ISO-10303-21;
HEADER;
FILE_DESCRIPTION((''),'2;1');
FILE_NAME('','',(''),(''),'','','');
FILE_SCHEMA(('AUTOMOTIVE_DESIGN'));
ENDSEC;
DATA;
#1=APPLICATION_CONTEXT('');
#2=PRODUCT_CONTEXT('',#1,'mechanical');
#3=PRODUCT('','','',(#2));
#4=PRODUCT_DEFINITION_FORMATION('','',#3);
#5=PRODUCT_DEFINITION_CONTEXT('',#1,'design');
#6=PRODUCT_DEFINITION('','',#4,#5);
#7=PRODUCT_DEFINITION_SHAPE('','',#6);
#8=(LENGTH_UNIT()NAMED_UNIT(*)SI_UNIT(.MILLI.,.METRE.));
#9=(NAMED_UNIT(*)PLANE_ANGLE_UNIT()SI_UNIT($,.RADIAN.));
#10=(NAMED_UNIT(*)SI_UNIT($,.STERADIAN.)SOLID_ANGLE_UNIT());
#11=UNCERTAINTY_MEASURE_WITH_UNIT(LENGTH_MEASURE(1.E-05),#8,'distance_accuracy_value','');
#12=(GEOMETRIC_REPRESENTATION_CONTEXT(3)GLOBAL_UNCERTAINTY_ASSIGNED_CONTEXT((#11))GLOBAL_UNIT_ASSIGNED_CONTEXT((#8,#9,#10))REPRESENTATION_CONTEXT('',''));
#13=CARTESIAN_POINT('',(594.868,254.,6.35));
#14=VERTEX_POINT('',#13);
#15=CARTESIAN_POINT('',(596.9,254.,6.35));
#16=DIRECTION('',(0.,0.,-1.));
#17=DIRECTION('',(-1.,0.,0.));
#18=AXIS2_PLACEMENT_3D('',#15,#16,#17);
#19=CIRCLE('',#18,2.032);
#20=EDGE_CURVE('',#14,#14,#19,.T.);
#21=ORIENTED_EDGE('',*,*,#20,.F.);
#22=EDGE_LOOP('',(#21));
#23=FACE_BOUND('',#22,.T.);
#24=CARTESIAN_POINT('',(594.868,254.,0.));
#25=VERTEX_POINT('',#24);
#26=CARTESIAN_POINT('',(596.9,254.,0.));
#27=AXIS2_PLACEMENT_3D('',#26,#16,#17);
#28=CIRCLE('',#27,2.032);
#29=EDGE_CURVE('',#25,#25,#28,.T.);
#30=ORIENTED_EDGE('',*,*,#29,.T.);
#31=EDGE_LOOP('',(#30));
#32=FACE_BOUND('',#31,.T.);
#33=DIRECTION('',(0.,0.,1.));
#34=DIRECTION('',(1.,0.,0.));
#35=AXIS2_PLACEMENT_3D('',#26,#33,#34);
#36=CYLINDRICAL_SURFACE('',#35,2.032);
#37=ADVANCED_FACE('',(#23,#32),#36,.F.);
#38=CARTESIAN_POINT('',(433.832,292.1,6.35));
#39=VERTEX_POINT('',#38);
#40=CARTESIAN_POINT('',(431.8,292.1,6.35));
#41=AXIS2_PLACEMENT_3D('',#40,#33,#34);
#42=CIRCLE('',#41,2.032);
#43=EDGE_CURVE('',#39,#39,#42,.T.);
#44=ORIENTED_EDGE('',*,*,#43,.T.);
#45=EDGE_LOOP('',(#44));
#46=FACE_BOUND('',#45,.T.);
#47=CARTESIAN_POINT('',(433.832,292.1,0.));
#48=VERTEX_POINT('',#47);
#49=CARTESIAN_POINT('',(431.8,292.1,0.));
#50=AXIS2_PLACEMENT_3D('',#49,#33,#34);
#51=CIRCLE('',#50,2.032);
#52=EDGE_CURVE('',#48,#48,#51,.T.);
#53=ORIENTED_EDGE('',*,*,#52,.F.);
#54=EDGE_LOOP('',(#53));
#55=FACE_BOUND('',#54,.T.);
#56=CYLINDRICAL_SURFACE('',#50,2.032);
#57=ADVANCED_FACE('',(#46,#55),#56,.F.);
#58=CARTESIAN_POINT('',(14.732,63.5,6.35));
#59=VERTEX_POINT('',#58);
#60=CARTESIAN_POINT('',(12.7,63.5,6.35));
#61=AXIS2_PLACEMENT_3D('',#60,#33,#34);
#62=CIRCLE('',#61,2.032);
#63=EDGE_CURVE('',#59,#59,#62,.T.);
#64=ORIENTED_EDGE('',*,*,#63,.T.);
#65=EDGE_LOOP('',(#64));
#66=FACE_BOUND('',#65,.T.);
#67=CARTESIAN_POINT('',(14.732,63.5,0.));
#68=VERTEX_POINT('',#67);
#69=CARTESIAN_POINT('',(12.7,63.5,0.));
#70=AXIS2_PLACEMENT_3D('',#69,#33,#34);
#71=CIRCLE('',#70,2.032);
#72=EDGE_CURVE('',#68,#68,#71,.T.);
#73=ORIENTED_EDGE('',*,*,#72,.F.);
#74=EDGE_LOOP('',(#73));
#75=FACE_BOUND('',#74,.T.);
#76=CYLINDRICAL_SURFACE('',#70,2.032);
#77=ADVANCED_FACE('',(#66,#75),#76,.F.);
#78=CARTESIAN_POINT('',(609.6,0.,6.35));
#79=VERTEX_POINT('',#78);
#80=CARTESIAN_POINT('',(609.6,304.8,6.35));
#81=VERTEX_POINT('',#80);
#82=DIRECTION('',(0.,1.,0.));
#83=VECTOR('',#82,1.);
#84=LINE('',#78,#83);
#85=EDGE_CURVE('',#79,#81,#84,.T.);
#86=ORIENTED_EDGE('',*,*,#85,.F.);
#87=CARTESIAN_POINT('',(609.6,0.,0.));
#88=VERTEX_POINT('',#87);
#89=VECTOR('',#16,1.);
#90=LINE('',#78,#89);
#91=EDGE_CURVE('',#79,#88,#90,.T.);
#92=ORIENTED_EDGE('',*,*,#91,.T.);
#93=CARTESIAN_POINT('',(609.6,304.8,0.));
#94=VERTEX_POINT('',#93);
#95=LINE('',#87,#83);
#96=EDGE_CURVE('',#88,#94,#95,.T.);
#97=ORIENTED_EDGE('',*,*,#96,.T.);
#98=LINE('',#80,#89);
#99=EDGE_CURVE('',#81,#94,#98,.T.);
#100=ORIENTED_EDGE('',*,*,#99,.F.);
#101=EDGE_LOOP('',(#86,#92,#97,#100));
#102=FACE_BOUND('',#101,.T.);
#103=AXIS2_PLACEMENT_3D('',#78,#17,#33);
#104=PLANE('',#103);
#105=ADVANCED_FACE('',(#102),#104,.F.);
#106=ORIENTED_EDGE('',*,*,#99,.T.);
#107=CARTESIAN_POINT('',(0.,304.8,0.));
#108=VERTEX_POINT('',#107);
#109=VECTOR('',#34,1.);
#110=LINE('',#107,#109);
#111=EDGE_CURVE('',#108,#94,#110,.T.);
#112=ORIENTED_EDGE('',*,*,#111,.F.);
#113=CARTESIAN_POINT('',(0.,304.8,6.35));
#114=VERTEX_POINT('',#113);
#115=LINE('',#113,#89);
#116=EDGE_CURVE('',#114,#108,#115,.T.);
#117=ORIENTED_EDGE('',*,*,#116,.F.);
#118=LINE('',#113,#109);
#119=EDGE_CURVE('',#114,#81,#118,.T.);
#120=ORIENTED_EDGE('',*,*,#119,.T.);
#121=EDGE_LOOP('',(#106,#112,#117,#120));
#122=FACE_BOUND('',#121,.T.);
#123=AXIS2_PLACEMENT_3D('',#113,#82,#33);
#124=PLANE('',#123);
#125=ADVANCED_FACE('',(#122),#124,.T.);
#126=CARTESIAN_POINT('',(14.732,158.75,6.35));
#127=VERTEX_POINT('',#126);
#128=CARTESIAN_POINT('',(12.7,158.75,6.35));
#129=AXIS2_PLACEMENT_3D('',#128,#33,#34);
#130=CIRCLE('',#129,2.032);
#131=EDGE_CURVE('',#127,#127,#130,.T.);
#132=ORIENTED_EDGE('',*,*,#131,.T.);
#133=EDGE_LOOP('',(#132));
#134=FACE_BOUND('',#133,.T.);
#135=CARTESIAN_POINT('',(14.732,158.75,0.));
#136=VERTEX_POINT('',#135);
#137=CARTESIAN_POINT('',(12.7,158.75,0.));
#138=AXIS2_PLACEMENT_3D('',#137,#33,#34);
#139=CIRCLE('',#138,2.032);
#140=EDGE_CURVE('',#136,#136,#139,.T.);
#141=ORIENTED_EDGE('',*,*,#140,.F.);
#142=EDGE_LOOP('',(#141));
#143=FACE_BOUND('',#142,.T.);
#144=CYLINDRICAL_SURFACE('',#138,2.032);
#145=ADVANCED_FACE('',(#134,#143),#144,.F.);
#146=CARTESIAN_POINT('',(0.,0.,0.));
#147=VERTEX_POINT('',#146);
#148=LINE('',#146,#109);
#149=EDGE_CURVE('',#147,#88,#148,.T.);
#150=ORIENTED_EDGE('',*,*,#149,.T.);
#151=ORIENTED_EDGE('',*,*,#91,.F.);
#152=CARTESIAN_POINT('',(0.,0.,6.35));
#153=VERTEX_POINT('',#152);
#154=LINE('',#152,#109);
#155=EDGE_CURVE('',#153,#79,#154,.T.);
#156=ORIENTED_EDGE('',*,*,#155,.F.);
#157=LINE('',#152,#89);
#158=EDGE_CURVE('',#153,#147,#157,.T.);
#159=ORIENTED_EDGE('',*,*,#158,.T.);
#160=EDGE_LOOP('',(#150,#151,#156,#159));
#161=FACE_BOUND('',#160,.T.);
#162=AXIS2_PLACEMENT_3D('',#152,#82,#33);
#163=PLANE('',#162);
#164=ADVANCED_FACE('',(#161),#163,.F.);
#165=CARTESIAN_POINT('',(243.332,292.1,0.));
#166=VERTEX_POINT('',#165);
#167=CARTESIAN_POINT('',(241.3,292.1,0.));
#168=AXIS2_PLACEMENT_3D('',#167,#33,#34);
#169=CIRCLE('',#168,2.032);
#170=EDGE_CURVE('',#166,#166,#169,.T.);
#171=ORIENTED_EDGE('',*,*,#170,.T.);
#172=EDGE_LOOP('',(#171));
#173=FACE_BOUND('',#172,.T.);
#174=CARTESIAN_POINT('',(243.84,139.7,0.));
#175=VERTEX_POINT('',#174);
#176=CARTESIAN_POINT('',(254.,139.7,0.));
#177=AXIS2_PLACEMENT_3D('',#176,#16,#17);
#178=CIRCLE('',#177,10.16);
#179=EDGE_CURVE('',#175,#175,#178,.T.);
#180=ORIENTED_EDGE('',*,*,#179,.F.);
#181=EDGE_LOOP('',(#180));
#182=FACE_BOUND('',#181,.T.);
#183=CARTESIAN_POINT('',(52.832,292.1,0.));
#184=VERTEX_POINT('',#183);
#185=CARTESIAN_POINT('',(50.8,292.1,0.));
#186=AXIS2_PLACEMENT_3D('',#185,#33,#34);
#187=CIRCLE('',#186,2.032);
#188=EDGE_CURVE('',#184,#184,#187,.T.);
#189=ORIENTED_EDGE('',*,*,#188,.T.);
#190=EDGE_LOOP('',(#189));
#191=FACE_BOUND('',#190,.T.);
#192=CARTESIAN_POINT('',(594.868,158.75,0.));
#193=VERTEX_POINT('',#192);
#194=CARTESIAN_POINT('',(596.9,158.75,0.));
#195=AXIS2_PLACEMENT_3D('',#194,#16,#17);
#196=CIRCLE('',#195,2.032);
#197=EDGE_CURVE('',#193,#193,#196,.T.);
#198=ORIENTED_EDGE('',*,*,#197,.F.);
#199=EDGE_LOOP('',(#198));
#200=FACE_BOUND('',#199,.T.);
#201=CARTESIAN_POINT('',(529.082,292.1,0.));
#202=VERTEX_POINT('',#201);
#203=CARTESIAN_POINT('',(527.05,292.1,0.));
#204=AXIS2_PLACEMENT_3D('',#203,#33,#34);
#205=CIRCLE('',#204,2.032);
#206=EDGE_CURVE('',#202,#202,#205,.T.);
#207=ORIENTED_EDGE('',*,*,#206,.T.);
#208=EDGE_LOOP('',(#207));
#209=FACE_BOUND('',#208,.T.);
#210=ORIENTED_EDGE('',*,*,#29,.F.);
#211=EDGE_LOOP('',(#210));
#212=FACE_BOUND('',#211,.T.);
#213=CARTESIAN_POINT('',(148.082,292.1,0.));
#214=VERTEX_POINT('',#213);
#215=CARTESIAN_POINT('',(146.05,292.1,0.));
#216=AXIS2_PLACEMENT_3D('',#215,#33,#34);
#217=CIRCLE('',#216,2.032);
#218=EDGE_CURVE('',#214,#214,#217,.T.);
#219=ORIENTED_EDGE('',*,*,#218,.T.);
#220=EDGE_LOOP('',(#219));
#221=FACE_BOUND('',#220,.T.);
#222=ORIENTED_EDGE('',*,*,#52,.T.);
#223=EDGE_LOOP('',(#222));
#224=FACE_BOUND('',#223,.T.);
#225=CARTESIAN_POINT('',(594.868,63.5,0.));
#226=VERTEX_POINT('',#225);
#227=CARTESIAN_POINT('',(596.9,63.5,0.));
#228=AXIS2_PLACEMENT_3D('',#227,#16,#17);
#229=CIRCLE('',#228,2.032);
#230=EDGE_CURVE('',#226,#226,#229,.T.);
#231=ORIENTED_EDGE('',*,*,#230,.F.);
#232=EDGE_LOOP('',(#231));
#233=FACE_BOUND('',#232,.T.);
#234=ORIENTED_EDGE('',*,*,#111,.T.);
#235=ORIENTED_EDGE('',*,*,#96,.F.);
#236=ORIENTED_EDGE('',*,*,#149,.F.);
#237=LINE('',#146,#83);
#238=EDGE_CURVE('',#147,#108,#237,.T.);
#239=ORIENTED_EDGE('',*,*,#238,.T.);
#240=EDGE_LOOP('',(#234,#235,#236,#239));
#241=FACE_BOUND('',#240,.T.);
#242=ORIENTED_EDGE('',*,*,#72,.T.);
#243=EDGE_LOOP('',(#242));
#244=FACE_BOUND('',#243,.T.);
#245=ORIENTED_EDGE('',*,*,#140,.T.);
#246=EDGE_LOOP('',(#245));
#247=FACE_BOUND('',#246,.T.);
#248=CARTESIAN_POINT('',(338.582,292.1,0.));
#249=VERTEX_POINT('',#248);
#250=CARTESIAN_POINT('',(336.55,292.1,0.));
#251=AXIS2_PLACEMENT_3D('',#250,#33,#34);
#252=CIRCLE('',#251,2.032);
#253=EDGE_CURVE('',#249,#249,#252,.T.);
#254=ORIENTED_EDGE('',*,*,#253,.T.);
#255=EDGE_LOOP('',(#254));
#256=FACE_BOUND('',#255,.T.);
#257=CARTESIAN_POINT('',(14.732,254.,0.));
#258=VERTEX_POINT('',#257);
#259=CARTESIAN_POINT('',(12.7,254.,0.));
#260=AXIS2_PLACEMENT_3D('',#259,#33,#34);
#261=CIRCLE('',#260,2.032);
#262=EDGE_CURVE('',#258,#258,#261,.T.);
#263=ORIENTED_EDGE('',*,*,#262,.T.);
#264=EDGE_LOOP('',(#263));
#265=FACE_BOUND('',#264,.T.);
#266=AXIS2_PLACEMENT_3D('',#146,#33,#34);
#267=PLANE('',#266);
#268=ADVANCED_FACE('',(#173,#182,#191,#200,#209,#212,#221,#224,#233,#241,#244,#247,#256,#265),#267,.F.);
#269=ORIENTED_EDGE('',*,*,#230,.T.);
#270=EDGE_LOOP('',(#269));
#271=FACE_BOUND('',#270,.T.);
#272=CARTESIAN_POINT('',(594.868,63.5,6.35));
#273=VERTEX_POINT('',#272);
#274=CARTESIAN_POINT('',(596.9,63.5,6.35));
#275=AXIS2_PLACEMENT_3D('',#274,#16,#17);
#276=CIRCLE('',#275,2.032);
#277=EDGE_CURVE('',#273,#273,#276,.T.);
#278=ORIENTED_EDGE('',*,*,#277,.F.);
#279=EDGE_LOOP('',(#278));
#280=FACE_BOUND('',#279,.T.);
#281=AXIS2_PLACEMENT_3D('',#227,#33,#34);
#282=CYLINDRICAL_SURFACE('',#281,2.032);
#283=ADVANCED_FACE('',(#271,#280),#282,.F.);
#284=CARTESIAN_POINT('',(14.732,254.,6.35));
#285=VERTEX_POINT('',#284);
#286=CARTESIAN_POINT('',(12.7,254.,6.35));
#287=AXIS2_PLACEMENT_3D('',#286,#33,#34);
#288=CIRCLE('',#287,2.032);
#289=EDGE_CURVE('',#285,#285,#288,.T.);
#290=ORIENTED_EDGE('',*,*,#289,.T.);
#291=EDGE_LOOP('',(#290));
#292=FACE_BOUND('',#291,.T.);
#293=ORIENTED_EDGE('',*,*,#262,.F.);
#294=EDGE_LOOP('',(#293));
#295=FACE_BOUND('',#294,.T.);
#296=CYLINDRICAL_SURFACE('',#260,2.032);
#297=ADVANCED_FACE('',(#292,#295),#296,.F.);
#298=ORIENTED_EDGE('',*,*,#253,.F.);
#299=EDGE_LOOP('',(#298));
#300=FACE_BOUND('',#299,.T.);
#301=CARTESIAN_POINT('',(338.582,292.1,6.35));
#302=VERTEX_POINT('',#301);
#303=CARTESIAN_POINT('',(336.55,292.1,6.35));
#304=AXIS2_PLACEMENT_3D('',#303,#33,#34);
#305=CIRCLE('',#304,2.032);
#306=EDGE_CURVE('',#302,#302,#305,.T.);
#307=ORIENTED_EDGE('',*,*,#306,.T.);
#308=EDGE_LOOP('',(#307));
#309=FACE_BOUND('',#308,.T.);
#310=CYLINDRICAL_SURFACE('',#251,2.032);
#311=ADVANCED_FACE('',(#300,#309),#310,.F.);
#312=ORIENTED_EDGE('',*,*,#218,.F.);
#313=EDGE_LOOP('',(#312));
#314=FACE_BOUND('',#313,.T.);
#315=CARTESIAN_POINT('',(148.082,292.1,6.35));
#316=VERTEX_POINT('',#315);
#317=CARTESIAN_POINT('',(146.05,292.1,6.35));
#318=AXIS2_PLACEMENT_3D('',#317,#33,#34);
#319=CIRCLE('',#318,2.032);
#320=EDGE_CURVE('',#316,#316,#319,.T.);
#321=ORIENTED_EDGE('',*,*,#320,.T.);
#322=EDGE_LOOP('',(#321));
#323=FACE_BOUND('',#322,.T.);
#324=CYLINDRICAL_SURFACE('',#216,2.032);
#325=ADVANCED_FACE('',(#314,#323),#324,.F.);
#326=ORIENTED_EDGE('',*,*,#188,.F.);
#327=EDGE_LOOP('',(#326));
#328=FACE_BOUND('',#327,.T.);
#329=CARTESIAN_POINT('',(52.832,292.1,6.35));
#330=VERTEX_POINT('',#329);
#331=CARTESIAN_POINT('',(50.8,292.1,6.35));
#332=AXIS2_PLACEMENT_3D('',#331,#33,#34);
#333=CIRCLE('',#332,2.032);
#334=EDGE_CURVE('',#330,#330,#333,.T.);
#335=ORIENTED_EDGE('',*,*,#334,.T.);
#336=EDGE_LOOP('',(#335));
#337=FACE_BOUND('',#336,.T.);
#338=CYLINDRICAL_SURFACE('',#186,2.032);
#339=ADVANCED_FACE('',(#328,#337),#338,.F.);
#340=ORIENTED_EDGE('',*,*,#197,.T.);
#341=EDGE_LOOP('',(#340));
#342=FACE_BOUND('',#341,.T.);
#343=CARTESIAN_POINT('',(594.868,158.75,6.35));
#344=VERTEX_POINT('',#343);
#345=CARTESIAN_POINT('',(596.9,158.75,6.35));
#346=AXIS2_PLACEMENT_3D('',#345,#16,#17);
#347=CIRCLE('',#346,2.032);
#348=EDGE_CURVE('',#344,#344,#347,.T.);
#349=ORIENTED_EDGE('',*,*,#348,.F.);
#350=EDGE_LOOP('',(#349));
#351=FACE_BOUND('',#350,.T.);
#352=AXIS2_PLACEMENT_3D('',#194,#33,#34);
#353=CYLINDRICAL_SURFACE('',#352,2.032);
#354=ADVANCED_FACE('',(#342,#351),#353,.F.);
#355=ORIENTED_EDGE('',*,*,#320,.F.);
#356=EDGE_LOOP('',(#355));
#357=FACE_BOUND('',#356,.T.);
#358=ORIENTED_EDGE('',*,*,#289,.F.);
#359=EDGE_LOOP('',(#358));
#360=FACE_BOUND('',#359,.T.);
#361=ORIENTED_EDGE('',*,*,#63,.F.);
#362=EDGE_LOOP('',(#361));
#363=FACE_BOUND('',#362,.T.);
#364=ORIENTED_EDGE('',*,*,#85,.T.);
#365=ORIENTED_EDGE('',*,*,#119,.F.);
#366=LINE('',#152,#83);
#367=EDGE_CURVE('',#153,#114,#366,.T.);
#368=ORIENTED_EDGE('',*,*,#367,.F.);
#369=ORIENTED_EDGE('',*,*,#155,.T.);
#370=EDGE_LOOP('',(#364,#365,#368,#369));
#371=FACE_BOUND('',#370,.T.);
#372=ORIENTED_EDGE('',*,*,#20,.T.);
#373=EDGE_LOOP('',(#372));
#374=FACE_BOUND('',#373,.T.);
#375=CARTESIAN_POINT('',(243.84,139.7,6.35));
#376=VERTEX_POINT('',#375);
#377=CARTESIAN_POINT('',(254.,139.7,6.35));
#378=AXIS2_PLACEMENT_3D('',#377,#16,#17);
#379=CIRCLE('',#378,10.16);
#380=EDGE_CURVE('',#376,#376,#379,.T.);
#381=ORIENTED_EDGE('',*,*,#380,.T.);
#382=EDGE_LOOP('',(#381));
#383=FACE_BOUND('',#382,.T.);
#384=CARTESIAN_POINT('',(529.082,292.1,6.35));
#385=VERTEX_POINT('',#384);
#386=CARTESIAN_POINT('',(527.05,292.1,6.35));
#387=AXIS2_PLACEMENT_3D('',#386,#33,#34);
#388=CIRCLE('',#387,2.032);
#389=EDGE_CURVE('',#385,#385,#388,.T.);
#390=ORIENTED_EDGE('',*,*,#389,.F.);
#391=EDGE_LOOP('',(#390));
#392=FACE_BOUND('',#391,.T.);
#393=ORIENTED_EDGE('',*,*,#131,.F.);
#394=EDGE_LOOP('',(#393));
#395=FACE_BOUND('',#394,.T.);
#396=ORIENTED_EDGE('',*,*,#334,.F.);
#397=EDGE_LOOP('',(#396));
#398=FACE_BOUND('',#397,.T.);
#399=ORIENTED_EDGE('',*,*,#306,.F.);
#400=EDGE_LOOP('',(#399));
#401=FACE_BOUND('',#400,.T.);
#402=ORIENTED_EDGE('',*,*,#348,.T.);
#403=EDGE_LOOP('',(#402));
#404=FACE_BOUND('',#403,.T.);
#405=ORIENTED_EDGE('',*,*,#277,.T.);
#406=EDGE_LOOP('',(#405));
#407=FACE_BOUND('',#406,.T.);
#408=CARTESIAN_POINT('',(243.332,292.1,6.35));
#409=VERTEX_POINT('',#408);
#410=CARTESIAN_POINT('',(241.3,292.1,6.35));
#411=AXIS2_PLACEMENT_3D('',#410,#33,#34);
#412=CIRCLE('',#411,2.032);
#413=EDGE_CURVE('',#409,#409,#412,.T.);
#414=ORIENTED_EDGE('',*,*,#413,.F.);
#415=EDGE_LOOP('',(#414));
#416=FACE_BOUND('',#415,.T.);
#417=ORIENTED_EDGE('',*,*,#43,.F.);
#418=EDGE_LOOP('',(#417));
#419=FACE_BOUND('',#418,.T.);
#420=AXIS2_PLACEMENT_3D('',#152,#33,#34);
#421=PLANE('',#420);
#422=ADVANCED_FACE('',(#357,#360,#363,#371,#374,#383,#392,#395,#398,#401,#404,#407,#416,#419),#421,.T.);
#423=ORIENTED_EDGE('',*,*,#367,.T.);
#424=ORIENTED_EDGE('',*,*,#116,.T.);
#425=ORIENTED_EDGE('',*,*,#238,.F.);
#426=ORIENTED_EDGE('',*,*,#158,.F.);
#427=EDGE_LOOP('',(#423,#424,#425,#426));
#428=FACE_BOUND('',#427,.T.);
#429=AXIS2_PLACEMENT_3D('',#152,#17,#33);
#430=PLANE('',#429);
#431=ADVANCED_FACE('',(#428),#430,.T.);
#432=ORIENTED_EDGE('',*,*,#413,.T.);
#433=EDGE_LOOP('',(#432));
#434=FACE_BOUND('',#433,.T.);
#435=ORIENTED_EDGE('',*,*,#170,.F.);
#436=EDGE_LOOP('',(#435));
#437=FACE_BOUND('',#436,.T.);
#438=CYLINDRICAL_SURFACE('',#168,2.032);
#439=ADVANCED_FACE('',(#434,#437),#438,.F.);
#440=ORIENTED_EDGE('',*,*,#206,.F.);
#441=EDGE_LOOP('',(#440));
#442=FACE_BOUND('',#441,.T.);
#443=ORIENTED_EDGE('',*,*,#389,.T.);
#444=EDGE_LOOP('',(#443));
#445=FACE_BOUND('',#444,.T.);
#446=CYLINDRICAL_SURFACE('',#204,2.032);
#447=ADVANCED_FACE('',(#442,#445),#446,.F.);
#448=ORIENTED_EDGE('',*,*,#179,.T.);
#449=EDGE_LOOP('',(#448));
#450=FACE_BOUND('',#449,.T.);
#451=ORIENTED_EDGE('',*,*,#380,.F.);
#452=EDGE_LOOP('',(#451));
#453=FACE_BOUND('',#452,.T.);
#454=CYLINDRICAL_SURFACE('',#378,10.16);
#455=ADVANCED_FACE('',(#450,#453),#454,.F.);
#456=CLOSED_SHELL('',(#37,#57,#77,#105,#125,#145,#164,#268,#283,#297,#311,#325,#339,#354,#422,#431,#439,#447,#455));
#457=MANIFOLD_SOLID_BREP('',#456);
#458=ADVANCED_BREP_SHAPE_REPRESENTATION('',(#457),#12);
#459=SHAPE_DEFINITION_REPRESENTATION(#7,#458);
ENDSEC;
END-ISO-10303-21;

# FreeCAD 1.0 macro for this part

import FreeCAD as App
import Part
import Sketcher

V = App.Vector
Q = App.Units.Quantity

doc = App.newDocument("Part")
body = doc.addObject("PartDesign::Body", "Body")

# Sketch on XY plane
sketch1 = body.newObject("Sketcher::SketchObject", "Sketch")
sketch1.AttachmentSupport = (doc.getObject("XY_Plane"), [""])
sketch1.MapMode = "FlatFace"
sketch1.addGeometry([
    Part.LineSegment(V(0, 305, 0), V(0, 0, 0)),
    Part.LineSegment(V(0, 0, 0), V(610, 0, 0)),
    Part.LineSegment(V(610, 0, 0), V(610, 305, 0)),
    Part.LineSegment(V(610, 305, 0), V(0, 305, 0)),
], False)
sketch1.addConstraint([
    Sketcher.Constraint("Coincident", 0, 2, 1, 1),
    Sketcher.Constraint("Coincident", 1, 2, 2, 1),
    Sketcher.Constraint("Coincident", 2, 2, 3, 1),
    Sketcher.Constraint("Coincident", 3, 2, 0, 1),
    Sketcher.Constraint("Vertical", 0),
    Sketcher.Constraint("Horizontal", 1),
    Sketcher.Constraint("Vertical", 2),
    Sketcher.Constraint("Horizontal", 3),
    Sketcher.Constraint("Coincident", 0, 2, -1, 1),
    Sketcher.Constraint("DistanceX", 1, 1, 1, 2, Q("24 in")),
    Sketcher.Constraint("DistanceY", 0, 2, 0, 1, Q("12 in")),
])
pad1 = body.newObject("PartDesign::Pad", "Pad")
pad1.Profile = sketch1
pad1.Length = Q("0.25 in")

# Sketch on XY plane
sketch2 = body.newObject("Sketcher::SketchObject", "Sketch001")
sketch2.AttachmentSupport = (doc.getObject("XY_Plane"), [""])
sketch2.MapMode = "FlatFace"
sketch2.AttachmentOffset = App.Placement(V(0, 0, 0.25 * 25.4), App.Rotation())
sketch2.addGeometry([
    Part.Circle(V(12.7, 254, 0), V(0, 0, 1), 2),  # 0
    Part.Circle(V(12.7, 158.8, 0), V(0, 0, 1), 2),  # 1
    Part.Circle(V(12.7, 63.5, 0), V(0, 0, 1), 2),  # 2
    Part.Circle(V(596.9, 63.5, 0), V(0, 0, 1), 2),  # 3
    Part.Circle(V(596.9, 158.8, 0), V(0, 0, 1), 2),  # 4
    Part.Circle(V(596.9, 254, 0), V(0, 0, 1), 2),  # 5
], False)
sketch2.addConstraint([
    Sketcher.Constraint("Equal", 0, 1),
    Sketcher.Constraint("Equal", 1, 2),
    Sketcher.Constraint("Equal", 2, 3),
    Sketcher.Constraint("Equal", 3, 4),
    Sketcher.Constraint("Equal", 4, 5),
    Sketcher.Constraint("Horizontal", 2, 3, 3, 3),
    Sketcher.Constraint("Horizontal", 1, 3, 4, 3),
    Sketcher.Constraint("Horizontal", 0, 3, 5, 3),
    Sketcher.Constraint("Vertical", 0, 3, 1, 3),
    Sketcher.Constraint("Vertical", 1, 3, 2, 3),
    Sketcher.Constraint("Vertical", 3, 3, 4, 3),
    Sketcher.Constraint("Vertical", 4, 3, 5, 3),
    Sketcher.Constraint("Diameter", 0, Q("0.16 in")),
    Sketcher.Constraint("DistanceY", -1, 1, 0, 3, Q("10 in")),
    Sketcher.Constraint("DistanceX", 2, 3, 3, 3, Q("23 in")),
    Sketcher.Constraint("DistanceX", -1, 1, 0, 3, Q("0.5 in")),
    Sketcher.Constraint("DistanceY", -1, 1, 2, 3, Q("2.5 in")),
    Sketcher.Constraint("DistanceY", -1, 1, 1, 3, Q("6.25 in")),
])
pocket1 = body.newObject("PartDesign::Pocket", "Pocket")
pocket1.Profile = sketch2
pocket1.Type = "ThroughAll"

# Sketch on XY plane
sketch3 = body.newObject("Sketcher::SketchObject", "Sketch002")
sketch3.AttachmentSupport = (doc.getObject("XY_Plane"), [""])
sketch3.MapMode = "FlatFace"
sketch3.AttachmentOffset = App.Placement(V(0, 0, 0.25 * 25.4), App.Rotation())
sketch3.addGeometry([
    Part.Circle(V(50.8, 292.1, 0), V(0, 0, 1), 2),  # 0
    Part.Circle(V(146.1, 292.1, 0), V(0, 0, 1), 2),  # 1
    Part.Circle(V(241.3, 292.1, 0), V(0, 0, 1), 2),  # 2
    Part.Circle(V(336.6, 292.1, 0), V(0, 0, 1), 2),  # 3
    Part.Circle(V(431.8, 292.1, 0), V(0, 0, 1), 2),  # 4
    Part.Circle(V(527, 292.1, 0), V(0, 0, 1), 2),  # 5
], False)
sketch3.addConstraint([
    Sketcher.Constraint("Equal", 0, 1),
    Sketcher.Constraint("Equal", 1, 2),
    Sketcher.Constraint("Equal", 2, 3),
    Sketcher.Constraint("Equal", 3, 4),
    Sketcher.Constraint("Equal", 4, 5),
    Sketcher.Constraint("Horizontal", 0, 3, 1, 3),
    Sketcher.Constraint("Horizontal", 1, 3, 2, 3),
    Sketcher.Constraint("Horizontal", 2, 3, 3, 3),
    Sketcher.Constraint("Horizontal", 3, 3, 4, 3),
    Sketcher.Constraint("Horizontal", 4, 3, 5, 3),
    Sketcher.Constraint("Diameter", 0, Q("0.16 in")),
    Sketcher.Constraint("DistanceX", -1, 1, 0, 3, Q("2 in")),
    Sketcher.Constraint("DistanceX", -1, 1, 4, 3, Q("17 in")),
    Sketcher.Constraint("DistanceX", 1, 3, 5, 3, Q("15 in")),
    Sketcher.Constraint("DistanceY", -1, 1, 0, 3, Q("11.5 in")),
    Sketcher.Constraint("DistanceX", -1, 1, 2, 3, Q("9.5 in")),
    Sketcher.Constraint("DistanceX", 1, 3, 3, 3, Q("7.5 in")),
    Sketcher.Constraint("DistanceX", -1, 1, 1, 3, Q("5.75 in")),
])
pocket2 = body.newObject("PartDesign::Pocket", "Pocket001")
pocket2.Profile = sketch3
pocket2.Type = "ThroughAll"

# Sketch on XY plane
sketch4 = body.newObject("Sketcher::SketchObject", "Sketch003")
sketch4.AttachmentSupport = (doc.getObject("XY_Plane"), [""])
sketch4.MapMode = "FlatFace"
sketch4.addGeometry(Part.Circle(V(254, 140, 0), V(0, 0, 1), 10), False)
sketch4.addConstraint([
    Sketcher.Constraint("Diameter", 0, Q("0.8 in")),
    Sketcher.Constraint("DistanceX", -1, 1, 0, 3, Q("10 in")),
    Sketcher.Constraint("DistanceY", -1, 1, 0, 3, Q("5.5 in")),
])
pocket3 = body.newObject("PartDesign::Pocket", "Pocket002")
pocket3.Profile = sketch4
pocket3.Type = "ThroughAll"
pocket3.Reversed = True

doc.recompute()
